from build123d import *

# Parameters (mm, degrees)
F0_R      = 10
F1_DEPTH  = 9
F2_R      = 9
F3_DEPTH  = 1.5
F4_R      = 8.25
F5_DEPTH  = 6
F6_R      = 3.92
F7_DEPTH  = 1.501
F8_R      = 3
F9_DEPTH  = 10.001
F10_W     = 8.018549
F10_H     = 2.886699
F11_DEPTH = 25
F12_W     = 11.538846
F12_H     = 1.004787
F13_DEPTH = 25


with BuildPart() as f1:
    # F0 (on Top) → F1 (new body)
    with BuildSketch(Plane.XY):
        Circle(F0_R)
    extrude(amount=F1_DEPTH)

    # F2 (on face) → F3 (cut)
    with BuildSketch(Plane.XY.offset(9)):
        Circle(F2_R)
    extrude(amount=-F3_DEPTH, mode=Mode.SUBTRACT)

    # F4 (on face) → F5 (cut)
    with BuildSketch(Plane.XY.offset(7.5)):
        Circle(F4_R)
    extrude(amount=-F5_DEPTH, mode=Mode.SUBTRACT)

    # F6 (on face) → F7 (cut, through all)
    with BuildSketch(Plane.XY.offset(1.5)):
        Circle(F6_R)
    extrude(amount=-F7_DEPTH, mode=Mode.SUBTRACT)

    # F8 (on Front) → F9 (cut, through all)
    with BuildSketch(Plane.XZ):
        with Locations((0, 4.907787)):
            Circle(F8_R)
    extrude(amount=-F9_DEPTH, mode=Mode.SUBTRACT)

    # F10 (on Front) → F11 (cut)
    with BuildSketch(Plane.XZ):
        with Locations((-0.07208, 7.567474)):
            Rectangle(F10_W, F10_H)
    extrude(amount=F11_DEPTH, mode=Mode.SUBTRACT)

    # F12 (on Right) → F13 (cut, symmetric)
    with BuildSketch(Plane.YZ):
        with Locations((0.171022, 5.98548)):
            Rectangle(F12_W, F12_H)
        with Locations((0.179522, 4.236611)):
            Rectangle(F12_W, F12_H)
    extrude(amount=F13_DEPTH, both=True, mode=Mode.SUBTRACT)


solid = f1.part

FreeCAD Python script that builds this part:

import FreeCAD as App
import Part
import Sketcher
from FreeCAD import Vector
Q = App.Units.Quantity

doc = App.newDocument("Part")
body = doc.addObject("PartDesign::Body", "Body")

sketch1 = body.newObject("Sketcher::SketchObject", "Sketch")
sketch1.AttachmentSupport = (doc.getObject("XY_Plane"), [""])
sketch1.MapMode = "FlatFace"
sketch1.addGeometry(Part.Circle(Vector(0, 0, 0), Vector(0, 0, 1), 10), False)
sketch1.addConstraint(Sketcher.Constraint("Coincident", 0, 3, -1, 1))
sketch1.addConstraint(Sketcher.Constraint("Diameter", 0, Q("20 mm")))
pad1 = body.newObject("PartDesign::Pad", "Pad")
pad1.Profile = sketch1
pad1.Length = 9

sketch2 = body.newObject("Sketcher::SketchObject", "Sketch001")
sketch2.AttachmentSupport = (doc.getObject("XY_Plane"), [""])
sketch2.MapMode = "FlatFace"
sketch2.AttachmentOffset = App.Placement(Vector(0, 0, 9), App.Rotation())
sketch2.addGeometry(Part.Circle(Vector(0, 0, 0), Vector(0, 0, 1), 9), False)
sketch2.addConstraint(Sketcher.Constraint("Coincident", 0, 3, -1, 1))
sketch2.addConstraint(Sketcher.Constraint("Diameter", 0, Q("18 mm")))
pocket1 = body.newObject("PartDesign::Pocket", "Pocket")
pocket1.Profile = sketch2
pocket1.Length = 1.5

sketch3 = body.newObject("Sketcher::SketchObject", "Sketch002")
sketch3.AttachmentSupport = (doc.getObject("XY_Plane"), [""])
sketch3.MapMode = "FlatFace"
sketch3.AttachmentOffset = App.Placement(Vector(0, 0, 7.5), App.Rotation())
sketch3.addGeometry(Part.Circle(Vector(0, 0, 0), Vector(0, 0, 1), 8.25), False)
sketch3.addConstraint(Sketcher.Constraint("Coincident", 0, 3, -1, 1))
sketch3.addConstraint(Sketcher.Constraint("Diameter", 0, Q("16.5 mm")))
pocket2 = body.newObject("PartDesign::Pocket", "Pocket001")
pocket2.Profile = sketch3
pocket2.Length = 6

sketch4 = body.newObject("Sketcher::SketchObject", "Sketch003")
sketch4.AttachmentSupport = (doc.getObject("XY_Plane"), [""])
sketch4.MapMode = "FlatFace"
sketch4.AttachmentOffset = App.Placement(Vector(0, 0, 1.5), App.Rotation())
sketch4.addGeometry(Part.Circle(Vector(0, 0, 0), Vector(0, 0, 1), 3.92), False)
sketch4.addConstraint(Sketcher.Constraint("Coincident", 0, 3, -1, 1))
sketch4.addConstraint(Sketcher.Constraint("Diameter", 0, Q("7.84 mm")))
pocket3 = body.newObject("PartDesign::Pocket", "Pocket002")
pocket3.Profile = sketch4
pocket3.Type = "ThroughAll"

sketch5 = body.newObject("Sketcher::SketchObject", "Sketch004")
sketch5.AttachmentSupport = (doc.getObject("XZ_Plane"), [""])
sketch5.MapMode = "FlatFace"
sketch5.addGeometry(Part.Circle(Vector(0, 4.907787, 0), Vector(0, 0, 1), 3), False)
sketch5.addConstraint(Sketcher.Constraint("PointOnObject", 0, 3, -2))
sketch5.addConstraint(Sketcher.Constraint("Diameter", 0, Q("6 mm")))
sketch5.addConstraint(Sketcher.Constraint("DistanceY", -1, 1, 0, 3, Q("4.907787 mm")))
pocket4 = body.newObject("PartDesign::Pocket", "Pocket003")
pocket4.Profile = sketch5
pocket4.Type = "ThroughAll"

sketch6 = body.newObject("Sketcher::SketchObject", "Sketch005")
sketch6.AttachmentSupport = (doc.getObject("XZ_Plane"), [""])
sketch6.MapMode = "FlatFace"
sketch6.addGeometry(Part.LineSegment(Vector(-4.081354, 9.010824, 0), Vector(-4.081354, 6.124124, 0)), False)
sketch6.addGeometry(Part.LineSegment(Vector(-4.081354, 6.124124, 0), Vector(3.937194, 6.124124, 0)), False)
sketch6.addGeometry(Part.LineSegment(Vector(3.937194, 6.124124, 0), Vector(3.937194, 9.010824, 0)), False)
sketch6.addGeometry(Part.LineSegment(Vector(3.937194, 9.010824, 0), Vector(-4.081354, 9.010824, 0)), False)
sketch6.addConstraint(Sketcher.Constraint("Coincident", 0, 2, 1, 1))
sketch6.addConstraint(Sketcher.Constraint("Coincident", 1, 2, 2, 1))
sketch6.addConstraint(Sketcher.Constraint("Coincident", 2, 2, 3, 1))
sketch6.addConstraint(Sketcher.Constraint("Coincident", 3, 2, 0, 1))
sketch6.addConstraint(Sketcher.Constraint("Vertical", 0))
sketch6.addConstraint(Sketcher.Constraint("Horizontal", 1))
sketch6.addConstraint(Sketcher.Constraint("Vertical", 2))
sketch6.addConstraint(Sketcher.Constraint("Horizontal", 3))
sketch6.addConstraint(Sketcher.Constraint("DistanceY", 0, 2, 0, 1, Q("2.886699 mm")))
sketch6.addConstraint(Sketcher.Constraint("DistanceX", 1, 1, 1, 2, Q("8.018549 mm")))
sketch6.addConstraint(Sketcher.Constraint("DistanceX", 0, 2, -1, 1, Q("4.081354 mm")))
sketch6.addConstraint(Sketcher.Constraint("DistanceY", -1, 1, 0, 2, Q("6.124124 mm")))
pocket5 = body.newObject("PartDesign::Pocket", "Pocket004")
pocket5.Profile = sketch6
pocket5.Length = 25
pocket5.Reversed = True

sketch7 = body.newObject("Sketcher::SketchObject", "Sketch006")
sketch7.AttachmentSupport = (doc.getObject("YZ_Plane"), [""])
sketch7.MapMode = "FlatFace"
sketch7.addGeometry(Part.LineSegment(Vector(-5.598401, 6.487874, 0), Vector(-5.598401, 5.483086, 0)), False)
sketch7.addGeometry(Part.LineSegment(Vector(-5.598401, 5.483086, 0), Vector(5.940445, 5.483086, 0)), False)
sketch7.addGeometry(Part.LineSegment(Vector(5.940445, 5.483086, 0), Vector(5.940445, 6.487874, 0)), False)
sketch7.addGeometry(Part.LineSegment(Vector(5.940445, 6.487874, 0), Vector(-5.598401, 6.487874, 0)), False)
sketch7.addGeometry(Part.LineSegment(Vector(-5.589901, 4.739005, 0), Vector(-5.589901, 3.734218, 0)), False)
sketch7.addGeometry(Part.LineSegment(Vector(-5.589901, 3.734218, 0), Vector(5.948945, 3.734218, 0)), False)
sketch7.addGeometry(Part.LineSegment(Vector(5.948945, 3.734218, 0), Vector(5.948945, 4.739005, 0)), False)
sketch7.addGeometry(Part.LineSegment(Vector(5.948945, 4.739005, 0), Vector(-5.589901, 4.739005, 0)), False)
sketch7.addConstraint(Sketcher.Constraint("Coincident", 0, 2, 1, 1))
sketch7.addConstraint(Sketcher.Constraint("Coincident", 1, 2, 2, 1))
sketch7.addConstraint(Sketcher.Constraint("Coincident", 2, 2, 3, 1))
sketch7.addConstraint(Sketcher.Constraint("Coincident", 3, 2, 0, 1))
sketch7.addConstraint(Sketcher.Constraint("Coincident", 4, 2, 5, 1))
sketch7.addConstraint(Sketcher.Constraint("Coincident", 5, 2, 6, 1))
sketch7.addConstraint(Sketcher.Constraint("Coincident", 6, 2, 7, 1))
sketch7.addConstraint(Sketcher.Constraint("Coincident", 7, 2, 4, 1))
sketch7.addConstraint(Sketcher.Constraint("Vertical", 0))
sketch7.addConstraint(Sketcher.Constraint("Horizontal", 1))
sketch7.addConstraint(Sketcher.Constraint("Vertical", 2))
sketch7.addConstraint(Sketcher.Constraint("Horizontal", 3))
sketch7.addConstraint(Sketcher.Constraint("Vertical", 4))
sketch7.addConstraint(Sketcher.Constraint("Horizontal", 5))
sketch7.addConstraint(Sketcher.Constraint("Vertical", 6))
sketch7.addConstraint(Sketcher.Constraint("Horizontal", 7))
sketch7.addConstraint(Sketcher.Constraint("Equal", 3, 5))
sketch7.addConstraint(Sketcher.Constraint("Equal", 2, 4))
sketch7.addConstraint(Sketcher.Constraint("DistanceX", 0, 2, -1, 1, Q("5.598401 mm")))
sketch7.addConstraint(Sketcher.Constraint("DistanceX", 4, 2, -1, 1, Q("5.589901 mm")))
sketch7.addConstraint(Sketcher.Constraint("DistanceX", 1, 1, 1, 2, Q("11.538846 mm")))
sketch7.addConstraint(Sketcher.Constraint("DistanceY", 0, 2, 0, 1, Q("1.004787 mm")))
sketch7.addConstraint(Sketcher.Constraint("DistanceY", 4, 2, 0, 2, Q("1.748869 mm")))
sketch7.addConstraint(Sketcher.Constraint("DistanceY", -1, 1, 0, 2, Q("5.483086 mm")))
pocket6 = body.newObject("PartDesign::Pocket", "Pocket005")
pocket6.Profile = sketch7
pocket6.Length = 50
pocket6.Midplane = True

doc.recompute()
